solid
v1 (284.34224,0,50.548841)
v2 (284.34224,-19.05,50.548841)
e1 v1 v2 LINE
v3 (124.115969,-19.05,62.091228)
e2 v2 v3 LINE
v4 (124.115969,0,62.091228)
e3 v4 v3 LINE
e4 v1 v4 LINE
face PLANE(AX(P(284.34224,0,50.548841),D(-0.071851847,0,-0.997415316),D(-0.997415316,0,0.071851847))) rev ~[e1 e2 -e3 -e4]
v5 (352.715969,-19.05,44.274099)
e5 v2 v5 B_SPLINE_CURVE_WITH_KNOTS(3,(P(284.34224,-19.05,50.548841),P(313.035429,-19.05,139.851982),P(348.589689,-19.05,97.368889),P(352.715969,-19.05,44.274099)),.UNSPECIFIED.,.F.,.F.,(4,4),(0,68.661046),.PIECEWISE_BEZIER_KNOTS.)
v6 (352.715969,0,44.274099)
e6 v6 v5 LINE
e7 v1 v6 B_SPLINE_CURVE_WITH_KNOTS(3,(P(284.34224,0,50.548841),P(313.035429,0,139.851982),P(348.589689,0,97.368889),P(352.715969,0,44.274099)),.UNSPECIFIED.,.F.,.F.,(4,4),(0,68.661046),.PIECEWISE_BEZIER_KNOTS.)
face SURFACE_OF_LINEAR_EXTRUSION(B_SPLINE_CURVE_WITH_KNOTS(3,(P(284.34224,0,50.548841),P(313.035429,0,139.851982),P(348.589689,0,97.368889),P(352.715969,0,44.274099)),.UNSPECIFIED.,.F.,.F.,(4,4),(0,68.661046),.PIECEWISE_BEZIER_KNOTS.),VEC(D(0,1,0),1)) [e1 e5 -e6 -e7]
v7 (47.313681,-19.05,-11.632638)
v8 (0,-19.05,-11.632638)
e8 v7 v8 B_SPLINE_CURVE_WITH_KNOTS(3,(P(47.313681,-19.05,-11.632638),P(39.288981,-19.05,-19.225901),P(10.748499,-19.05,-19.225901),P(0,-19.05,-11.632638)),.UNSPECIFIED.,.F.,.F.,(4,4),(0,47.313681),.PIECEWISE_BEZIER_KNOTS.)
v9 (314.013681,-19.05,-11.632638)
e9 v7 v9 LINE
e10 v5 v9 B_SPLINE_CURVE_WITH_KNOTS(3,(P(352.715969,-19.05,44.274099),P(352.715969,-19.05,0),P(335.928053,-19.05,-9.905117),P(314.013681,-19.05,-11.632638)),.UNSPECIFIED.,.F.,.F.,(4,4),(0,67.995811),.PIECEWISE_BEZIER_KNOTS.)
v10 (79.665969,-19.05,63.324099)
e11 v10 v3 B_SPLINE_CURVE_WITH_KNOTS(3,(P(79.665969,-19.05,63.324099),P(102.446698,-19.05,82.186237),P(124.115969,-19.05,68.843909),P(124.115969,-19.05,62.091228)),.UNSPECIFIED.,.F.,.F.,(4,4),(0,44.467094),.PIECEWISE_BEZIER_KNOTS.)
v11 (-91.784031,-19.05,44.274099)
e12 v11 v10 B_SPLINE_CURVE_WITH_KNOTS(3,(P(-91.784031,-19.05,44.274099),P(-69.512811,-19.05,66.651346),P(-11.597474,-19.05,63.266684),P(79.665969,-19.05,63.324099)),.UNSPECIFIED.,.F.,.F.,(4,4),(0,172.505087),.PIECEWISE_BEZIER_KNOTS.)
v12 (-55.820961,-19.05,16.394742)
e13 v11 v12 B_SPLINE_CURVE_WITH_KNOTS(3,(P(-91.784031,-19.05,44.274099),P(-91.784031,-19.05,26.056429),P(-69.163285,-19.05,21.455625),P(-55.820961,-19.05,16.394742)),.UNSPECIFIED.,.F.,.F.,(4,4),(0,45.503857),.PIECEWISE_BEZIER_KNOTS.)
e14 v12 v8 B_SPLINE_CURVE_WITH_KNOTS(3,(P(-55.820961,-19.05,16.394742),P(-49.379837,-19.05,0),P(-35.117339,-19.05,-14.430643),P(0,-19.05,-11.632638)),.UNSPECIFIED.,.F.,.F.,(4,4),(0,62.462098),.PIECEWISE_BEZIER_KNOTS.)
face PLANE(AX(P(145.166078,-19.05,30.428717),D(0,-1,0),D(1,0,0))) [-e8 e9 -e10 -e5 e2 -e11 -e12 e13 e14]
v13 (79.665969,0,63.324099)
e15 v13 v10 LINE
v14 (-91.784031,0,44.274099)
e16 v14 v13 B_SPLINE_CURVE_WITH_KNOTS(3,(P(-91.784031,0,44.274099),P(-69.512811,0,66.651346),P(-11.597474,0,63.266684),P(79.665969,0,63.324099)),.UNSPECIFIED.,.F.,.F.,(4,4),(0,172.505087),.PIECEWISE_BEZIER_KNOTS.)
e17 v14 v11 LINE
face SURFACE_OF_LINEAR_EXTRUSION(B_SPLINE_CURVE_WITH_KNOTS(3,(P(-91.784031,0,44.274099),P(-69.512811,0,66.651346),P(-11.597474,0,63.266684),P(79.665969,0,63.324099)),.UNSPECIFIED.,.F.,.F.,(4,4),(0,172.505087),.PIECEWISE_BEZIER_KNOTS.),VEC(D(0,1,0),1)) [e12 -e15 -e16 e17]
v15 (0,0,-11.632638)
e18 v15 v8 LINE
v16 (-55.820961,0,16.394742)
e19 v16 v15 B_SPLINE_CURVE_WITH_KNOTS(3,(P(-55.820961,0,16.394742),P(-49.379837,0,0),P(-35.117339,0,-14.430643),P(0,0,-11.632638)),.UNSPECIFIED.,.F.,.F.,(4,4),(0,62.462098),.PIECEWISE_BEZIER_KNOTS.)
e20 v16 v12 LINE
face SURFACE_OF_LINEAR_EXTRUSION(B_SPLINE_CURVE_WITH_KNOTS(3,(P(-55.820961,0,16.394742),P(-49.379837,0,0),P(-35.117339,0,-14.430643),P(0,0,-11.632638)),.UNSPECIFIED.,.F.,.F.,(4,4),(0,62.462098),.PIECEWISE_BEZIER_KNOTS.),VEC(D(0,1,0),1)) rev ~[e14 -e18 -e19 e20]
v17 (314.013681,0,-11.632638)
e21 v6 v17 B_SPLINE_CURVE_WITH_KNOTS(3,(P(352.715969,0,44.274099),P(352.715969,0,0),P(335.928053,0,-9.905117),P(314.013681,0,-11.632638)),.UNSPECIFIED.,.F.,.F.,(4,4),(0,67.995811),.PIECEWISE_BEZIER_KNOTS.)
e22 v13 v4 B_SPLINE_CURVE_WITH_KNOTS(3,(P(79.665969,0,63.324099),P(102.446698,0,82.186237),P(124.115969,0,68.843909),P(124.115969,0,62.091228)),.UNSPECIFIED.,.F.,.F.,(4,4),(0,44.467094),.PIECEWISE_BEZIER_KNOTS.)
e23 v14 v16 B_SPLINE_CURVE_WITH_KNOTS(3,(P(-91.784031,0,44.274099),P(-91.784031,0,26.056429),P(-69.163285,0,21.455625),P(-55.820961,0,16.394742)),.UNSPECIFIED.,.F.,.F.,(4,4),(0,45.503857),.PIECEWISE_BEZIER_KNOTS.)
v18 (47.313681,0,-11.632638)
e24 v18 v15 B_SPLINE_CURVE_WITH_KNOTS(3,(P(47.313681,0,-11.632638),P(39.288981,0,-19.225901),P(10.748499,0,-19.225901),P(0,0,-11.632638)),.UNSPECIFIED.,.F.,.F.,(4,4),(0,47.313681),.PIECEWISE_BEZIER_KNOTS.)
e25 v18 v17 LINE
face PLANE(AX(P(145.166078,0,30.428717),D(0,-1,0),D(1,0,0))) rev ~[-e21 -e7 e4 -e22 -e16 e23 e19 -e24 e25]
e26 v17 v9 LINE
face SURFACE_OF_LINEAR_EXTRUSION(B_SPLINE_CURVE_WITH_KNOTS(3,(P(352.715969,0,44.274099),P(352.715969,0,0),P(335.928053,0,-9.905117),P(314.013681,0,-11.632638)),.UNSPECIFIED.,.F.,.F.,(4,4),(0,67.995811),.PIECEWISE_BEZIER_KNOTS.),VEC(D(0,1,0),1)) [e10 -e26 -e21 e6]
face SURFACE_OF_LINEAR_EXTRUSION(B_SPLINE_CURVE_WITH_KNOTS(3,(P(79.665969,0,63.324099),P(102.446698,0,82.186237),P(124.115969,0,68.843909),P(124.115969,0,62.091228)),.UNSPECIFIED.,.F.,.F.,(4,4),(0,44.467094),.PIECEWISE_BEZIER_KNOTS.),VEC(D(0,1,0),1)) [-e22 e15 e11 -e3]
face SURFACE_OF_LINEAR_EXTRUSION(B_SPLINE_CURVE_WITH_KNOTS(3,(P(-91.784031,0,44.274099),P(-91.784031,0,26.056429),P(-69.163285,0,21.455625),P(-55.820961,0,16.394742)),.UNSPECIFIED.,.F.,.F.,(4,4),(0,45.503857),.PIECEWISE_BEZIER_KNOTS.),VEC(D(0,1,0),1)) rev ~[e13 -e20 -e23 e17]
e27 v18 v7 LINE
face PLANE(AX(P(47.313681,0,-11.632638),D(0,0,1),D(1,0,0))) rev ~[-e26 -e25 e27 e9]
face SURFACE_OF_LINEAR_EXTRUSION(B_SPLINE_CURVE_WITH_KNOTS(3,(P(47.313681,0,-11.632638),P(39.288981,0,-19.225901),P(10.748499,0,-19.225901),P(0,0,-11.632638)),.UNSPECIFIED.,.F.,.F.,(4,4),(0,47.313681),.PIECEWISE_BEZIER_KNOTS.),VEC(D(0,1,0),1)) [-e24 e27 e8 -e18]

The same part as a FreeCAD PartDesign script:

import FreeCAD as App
import Part
import Sketcher
from FreeCAD import Vector
Q = App.Units.Quantity

doc = App.newDocument("Part")
body = doc.addObject("PartDesign::Body", "Body")

sketch1 = body.newObject("Sketcher::SketchObject", "Sketch")
sketch1.AttachmentSupport = (doc.getObject("XZ_Plane"), [""])
sketch1.MapMode = "FlatFace"
sketch1.addGeometry([
    Part.LineSegment(Vector(47.313681, -11.632638, 0), Vector(314.013681, -11.632638, 0)),
    Part.BSplineCurve([Vector(352.715969, 44.274099, 0), Vector(352.715969, 0, 0), Vector(335.928053, -9.905117, 0), Vector(314.013681, -11.632638, 0)], [4, 4], [0, 67.995811], False, 3, [1, 1, 1, 1], False),
    Part.BSplineCurve([Vector(284.34224, 50.548841, 0), Vector(313.035429, 139.851982, 0), Vector(348.589689, 97.368889, 0), Vector(352.715969, 44.274099, 0)], [4, 4], [0, 68.661046], False, 3, [1, 1, 1, 1], False),
    Part.LineSegment(Vector(284.34224, 50.548841, 0), Vector(124.115969, 62.091228, 0)),
    Part.BSplineCurve([Vector(79.665969, 63.324099, 0), Vector(102.446698, 82.186237, 0), Vector(124.115969, 68.843909, 0), Vector(124.115969, 62.091228, 0)], [4, 4], [0, 44.467094], False, 3, [1, 1, 1, 1], False),
    Part.BSplineCurve([Vector(-91.784031, 44.274099, 0), Vector(-69.512811, 66.651346, 0), Vector(-11.597474, 63.266684, 0), Vector(79.665969, 63.324099, 0)], [4, 4], [0, 172.505087], False, 3, [1, 1, 1, 1], False),
    Part.BSplineCurve([Vector(-91.784031, 44.274099, 0), Vector(-91.784031, 26.056429, 0), Vector(-69.163285, 21.455625, 0), Vector(-55.820961, 16.394742, 0)], [4, 4], [0, 45.503857], False, 3, [1, 1, 1, 1], False),
    Part.BSplineCurve([Vector(-55.820961, 16.394742, 0), Vector(-49.379837, 0, 0), Vector(-35.117339, -14.430643, 0), Vector(0, -11.632638, 0)], [4, 4], [0, 62.462098], False, 3, [1, 1, 1, 1], False),
    Part.BSplineCurve([Vector(47.313681, -11.632638, 0), Vector(39.288981, -19.225901, 0), Vector(10.748499, -19.225901, 0), Vector(0, -11.632638, 0)], [4, 4], [0, 47.313681], False, 3, [1, 1, 1, 1], False),
], False)
sketch1.addConstraint([
    Sketcher.Constraint("Block", 1),
    Sketcher.Constraint("Block", 2),
    Sketcher.Constraint("Block", 4),
    Sketcher.Constraint("Block", 5),
    Sketcher.Constraint("Block", 6),
    Sketcher.Constraint("Block", 7),
    Sketcher.Constraint("Block", 8),
    Sketcher.Constraint("Coincident", 0, 2, 1, 2),
    Sketcher.Constraint("Coincident", 2, 1, 3, 1),
    Sketcher.Constraint("Coincident", 3, 2, 4, 2),
    Sketcher.Constraint("Coincident", 8, 1, 0, 1),
])
pad1 = body.newObject("PartDesign::Pad", "Pad")
pad1.Profile = sketch1
pad1.Length = Q("0.75 in")

doc.recompute()
